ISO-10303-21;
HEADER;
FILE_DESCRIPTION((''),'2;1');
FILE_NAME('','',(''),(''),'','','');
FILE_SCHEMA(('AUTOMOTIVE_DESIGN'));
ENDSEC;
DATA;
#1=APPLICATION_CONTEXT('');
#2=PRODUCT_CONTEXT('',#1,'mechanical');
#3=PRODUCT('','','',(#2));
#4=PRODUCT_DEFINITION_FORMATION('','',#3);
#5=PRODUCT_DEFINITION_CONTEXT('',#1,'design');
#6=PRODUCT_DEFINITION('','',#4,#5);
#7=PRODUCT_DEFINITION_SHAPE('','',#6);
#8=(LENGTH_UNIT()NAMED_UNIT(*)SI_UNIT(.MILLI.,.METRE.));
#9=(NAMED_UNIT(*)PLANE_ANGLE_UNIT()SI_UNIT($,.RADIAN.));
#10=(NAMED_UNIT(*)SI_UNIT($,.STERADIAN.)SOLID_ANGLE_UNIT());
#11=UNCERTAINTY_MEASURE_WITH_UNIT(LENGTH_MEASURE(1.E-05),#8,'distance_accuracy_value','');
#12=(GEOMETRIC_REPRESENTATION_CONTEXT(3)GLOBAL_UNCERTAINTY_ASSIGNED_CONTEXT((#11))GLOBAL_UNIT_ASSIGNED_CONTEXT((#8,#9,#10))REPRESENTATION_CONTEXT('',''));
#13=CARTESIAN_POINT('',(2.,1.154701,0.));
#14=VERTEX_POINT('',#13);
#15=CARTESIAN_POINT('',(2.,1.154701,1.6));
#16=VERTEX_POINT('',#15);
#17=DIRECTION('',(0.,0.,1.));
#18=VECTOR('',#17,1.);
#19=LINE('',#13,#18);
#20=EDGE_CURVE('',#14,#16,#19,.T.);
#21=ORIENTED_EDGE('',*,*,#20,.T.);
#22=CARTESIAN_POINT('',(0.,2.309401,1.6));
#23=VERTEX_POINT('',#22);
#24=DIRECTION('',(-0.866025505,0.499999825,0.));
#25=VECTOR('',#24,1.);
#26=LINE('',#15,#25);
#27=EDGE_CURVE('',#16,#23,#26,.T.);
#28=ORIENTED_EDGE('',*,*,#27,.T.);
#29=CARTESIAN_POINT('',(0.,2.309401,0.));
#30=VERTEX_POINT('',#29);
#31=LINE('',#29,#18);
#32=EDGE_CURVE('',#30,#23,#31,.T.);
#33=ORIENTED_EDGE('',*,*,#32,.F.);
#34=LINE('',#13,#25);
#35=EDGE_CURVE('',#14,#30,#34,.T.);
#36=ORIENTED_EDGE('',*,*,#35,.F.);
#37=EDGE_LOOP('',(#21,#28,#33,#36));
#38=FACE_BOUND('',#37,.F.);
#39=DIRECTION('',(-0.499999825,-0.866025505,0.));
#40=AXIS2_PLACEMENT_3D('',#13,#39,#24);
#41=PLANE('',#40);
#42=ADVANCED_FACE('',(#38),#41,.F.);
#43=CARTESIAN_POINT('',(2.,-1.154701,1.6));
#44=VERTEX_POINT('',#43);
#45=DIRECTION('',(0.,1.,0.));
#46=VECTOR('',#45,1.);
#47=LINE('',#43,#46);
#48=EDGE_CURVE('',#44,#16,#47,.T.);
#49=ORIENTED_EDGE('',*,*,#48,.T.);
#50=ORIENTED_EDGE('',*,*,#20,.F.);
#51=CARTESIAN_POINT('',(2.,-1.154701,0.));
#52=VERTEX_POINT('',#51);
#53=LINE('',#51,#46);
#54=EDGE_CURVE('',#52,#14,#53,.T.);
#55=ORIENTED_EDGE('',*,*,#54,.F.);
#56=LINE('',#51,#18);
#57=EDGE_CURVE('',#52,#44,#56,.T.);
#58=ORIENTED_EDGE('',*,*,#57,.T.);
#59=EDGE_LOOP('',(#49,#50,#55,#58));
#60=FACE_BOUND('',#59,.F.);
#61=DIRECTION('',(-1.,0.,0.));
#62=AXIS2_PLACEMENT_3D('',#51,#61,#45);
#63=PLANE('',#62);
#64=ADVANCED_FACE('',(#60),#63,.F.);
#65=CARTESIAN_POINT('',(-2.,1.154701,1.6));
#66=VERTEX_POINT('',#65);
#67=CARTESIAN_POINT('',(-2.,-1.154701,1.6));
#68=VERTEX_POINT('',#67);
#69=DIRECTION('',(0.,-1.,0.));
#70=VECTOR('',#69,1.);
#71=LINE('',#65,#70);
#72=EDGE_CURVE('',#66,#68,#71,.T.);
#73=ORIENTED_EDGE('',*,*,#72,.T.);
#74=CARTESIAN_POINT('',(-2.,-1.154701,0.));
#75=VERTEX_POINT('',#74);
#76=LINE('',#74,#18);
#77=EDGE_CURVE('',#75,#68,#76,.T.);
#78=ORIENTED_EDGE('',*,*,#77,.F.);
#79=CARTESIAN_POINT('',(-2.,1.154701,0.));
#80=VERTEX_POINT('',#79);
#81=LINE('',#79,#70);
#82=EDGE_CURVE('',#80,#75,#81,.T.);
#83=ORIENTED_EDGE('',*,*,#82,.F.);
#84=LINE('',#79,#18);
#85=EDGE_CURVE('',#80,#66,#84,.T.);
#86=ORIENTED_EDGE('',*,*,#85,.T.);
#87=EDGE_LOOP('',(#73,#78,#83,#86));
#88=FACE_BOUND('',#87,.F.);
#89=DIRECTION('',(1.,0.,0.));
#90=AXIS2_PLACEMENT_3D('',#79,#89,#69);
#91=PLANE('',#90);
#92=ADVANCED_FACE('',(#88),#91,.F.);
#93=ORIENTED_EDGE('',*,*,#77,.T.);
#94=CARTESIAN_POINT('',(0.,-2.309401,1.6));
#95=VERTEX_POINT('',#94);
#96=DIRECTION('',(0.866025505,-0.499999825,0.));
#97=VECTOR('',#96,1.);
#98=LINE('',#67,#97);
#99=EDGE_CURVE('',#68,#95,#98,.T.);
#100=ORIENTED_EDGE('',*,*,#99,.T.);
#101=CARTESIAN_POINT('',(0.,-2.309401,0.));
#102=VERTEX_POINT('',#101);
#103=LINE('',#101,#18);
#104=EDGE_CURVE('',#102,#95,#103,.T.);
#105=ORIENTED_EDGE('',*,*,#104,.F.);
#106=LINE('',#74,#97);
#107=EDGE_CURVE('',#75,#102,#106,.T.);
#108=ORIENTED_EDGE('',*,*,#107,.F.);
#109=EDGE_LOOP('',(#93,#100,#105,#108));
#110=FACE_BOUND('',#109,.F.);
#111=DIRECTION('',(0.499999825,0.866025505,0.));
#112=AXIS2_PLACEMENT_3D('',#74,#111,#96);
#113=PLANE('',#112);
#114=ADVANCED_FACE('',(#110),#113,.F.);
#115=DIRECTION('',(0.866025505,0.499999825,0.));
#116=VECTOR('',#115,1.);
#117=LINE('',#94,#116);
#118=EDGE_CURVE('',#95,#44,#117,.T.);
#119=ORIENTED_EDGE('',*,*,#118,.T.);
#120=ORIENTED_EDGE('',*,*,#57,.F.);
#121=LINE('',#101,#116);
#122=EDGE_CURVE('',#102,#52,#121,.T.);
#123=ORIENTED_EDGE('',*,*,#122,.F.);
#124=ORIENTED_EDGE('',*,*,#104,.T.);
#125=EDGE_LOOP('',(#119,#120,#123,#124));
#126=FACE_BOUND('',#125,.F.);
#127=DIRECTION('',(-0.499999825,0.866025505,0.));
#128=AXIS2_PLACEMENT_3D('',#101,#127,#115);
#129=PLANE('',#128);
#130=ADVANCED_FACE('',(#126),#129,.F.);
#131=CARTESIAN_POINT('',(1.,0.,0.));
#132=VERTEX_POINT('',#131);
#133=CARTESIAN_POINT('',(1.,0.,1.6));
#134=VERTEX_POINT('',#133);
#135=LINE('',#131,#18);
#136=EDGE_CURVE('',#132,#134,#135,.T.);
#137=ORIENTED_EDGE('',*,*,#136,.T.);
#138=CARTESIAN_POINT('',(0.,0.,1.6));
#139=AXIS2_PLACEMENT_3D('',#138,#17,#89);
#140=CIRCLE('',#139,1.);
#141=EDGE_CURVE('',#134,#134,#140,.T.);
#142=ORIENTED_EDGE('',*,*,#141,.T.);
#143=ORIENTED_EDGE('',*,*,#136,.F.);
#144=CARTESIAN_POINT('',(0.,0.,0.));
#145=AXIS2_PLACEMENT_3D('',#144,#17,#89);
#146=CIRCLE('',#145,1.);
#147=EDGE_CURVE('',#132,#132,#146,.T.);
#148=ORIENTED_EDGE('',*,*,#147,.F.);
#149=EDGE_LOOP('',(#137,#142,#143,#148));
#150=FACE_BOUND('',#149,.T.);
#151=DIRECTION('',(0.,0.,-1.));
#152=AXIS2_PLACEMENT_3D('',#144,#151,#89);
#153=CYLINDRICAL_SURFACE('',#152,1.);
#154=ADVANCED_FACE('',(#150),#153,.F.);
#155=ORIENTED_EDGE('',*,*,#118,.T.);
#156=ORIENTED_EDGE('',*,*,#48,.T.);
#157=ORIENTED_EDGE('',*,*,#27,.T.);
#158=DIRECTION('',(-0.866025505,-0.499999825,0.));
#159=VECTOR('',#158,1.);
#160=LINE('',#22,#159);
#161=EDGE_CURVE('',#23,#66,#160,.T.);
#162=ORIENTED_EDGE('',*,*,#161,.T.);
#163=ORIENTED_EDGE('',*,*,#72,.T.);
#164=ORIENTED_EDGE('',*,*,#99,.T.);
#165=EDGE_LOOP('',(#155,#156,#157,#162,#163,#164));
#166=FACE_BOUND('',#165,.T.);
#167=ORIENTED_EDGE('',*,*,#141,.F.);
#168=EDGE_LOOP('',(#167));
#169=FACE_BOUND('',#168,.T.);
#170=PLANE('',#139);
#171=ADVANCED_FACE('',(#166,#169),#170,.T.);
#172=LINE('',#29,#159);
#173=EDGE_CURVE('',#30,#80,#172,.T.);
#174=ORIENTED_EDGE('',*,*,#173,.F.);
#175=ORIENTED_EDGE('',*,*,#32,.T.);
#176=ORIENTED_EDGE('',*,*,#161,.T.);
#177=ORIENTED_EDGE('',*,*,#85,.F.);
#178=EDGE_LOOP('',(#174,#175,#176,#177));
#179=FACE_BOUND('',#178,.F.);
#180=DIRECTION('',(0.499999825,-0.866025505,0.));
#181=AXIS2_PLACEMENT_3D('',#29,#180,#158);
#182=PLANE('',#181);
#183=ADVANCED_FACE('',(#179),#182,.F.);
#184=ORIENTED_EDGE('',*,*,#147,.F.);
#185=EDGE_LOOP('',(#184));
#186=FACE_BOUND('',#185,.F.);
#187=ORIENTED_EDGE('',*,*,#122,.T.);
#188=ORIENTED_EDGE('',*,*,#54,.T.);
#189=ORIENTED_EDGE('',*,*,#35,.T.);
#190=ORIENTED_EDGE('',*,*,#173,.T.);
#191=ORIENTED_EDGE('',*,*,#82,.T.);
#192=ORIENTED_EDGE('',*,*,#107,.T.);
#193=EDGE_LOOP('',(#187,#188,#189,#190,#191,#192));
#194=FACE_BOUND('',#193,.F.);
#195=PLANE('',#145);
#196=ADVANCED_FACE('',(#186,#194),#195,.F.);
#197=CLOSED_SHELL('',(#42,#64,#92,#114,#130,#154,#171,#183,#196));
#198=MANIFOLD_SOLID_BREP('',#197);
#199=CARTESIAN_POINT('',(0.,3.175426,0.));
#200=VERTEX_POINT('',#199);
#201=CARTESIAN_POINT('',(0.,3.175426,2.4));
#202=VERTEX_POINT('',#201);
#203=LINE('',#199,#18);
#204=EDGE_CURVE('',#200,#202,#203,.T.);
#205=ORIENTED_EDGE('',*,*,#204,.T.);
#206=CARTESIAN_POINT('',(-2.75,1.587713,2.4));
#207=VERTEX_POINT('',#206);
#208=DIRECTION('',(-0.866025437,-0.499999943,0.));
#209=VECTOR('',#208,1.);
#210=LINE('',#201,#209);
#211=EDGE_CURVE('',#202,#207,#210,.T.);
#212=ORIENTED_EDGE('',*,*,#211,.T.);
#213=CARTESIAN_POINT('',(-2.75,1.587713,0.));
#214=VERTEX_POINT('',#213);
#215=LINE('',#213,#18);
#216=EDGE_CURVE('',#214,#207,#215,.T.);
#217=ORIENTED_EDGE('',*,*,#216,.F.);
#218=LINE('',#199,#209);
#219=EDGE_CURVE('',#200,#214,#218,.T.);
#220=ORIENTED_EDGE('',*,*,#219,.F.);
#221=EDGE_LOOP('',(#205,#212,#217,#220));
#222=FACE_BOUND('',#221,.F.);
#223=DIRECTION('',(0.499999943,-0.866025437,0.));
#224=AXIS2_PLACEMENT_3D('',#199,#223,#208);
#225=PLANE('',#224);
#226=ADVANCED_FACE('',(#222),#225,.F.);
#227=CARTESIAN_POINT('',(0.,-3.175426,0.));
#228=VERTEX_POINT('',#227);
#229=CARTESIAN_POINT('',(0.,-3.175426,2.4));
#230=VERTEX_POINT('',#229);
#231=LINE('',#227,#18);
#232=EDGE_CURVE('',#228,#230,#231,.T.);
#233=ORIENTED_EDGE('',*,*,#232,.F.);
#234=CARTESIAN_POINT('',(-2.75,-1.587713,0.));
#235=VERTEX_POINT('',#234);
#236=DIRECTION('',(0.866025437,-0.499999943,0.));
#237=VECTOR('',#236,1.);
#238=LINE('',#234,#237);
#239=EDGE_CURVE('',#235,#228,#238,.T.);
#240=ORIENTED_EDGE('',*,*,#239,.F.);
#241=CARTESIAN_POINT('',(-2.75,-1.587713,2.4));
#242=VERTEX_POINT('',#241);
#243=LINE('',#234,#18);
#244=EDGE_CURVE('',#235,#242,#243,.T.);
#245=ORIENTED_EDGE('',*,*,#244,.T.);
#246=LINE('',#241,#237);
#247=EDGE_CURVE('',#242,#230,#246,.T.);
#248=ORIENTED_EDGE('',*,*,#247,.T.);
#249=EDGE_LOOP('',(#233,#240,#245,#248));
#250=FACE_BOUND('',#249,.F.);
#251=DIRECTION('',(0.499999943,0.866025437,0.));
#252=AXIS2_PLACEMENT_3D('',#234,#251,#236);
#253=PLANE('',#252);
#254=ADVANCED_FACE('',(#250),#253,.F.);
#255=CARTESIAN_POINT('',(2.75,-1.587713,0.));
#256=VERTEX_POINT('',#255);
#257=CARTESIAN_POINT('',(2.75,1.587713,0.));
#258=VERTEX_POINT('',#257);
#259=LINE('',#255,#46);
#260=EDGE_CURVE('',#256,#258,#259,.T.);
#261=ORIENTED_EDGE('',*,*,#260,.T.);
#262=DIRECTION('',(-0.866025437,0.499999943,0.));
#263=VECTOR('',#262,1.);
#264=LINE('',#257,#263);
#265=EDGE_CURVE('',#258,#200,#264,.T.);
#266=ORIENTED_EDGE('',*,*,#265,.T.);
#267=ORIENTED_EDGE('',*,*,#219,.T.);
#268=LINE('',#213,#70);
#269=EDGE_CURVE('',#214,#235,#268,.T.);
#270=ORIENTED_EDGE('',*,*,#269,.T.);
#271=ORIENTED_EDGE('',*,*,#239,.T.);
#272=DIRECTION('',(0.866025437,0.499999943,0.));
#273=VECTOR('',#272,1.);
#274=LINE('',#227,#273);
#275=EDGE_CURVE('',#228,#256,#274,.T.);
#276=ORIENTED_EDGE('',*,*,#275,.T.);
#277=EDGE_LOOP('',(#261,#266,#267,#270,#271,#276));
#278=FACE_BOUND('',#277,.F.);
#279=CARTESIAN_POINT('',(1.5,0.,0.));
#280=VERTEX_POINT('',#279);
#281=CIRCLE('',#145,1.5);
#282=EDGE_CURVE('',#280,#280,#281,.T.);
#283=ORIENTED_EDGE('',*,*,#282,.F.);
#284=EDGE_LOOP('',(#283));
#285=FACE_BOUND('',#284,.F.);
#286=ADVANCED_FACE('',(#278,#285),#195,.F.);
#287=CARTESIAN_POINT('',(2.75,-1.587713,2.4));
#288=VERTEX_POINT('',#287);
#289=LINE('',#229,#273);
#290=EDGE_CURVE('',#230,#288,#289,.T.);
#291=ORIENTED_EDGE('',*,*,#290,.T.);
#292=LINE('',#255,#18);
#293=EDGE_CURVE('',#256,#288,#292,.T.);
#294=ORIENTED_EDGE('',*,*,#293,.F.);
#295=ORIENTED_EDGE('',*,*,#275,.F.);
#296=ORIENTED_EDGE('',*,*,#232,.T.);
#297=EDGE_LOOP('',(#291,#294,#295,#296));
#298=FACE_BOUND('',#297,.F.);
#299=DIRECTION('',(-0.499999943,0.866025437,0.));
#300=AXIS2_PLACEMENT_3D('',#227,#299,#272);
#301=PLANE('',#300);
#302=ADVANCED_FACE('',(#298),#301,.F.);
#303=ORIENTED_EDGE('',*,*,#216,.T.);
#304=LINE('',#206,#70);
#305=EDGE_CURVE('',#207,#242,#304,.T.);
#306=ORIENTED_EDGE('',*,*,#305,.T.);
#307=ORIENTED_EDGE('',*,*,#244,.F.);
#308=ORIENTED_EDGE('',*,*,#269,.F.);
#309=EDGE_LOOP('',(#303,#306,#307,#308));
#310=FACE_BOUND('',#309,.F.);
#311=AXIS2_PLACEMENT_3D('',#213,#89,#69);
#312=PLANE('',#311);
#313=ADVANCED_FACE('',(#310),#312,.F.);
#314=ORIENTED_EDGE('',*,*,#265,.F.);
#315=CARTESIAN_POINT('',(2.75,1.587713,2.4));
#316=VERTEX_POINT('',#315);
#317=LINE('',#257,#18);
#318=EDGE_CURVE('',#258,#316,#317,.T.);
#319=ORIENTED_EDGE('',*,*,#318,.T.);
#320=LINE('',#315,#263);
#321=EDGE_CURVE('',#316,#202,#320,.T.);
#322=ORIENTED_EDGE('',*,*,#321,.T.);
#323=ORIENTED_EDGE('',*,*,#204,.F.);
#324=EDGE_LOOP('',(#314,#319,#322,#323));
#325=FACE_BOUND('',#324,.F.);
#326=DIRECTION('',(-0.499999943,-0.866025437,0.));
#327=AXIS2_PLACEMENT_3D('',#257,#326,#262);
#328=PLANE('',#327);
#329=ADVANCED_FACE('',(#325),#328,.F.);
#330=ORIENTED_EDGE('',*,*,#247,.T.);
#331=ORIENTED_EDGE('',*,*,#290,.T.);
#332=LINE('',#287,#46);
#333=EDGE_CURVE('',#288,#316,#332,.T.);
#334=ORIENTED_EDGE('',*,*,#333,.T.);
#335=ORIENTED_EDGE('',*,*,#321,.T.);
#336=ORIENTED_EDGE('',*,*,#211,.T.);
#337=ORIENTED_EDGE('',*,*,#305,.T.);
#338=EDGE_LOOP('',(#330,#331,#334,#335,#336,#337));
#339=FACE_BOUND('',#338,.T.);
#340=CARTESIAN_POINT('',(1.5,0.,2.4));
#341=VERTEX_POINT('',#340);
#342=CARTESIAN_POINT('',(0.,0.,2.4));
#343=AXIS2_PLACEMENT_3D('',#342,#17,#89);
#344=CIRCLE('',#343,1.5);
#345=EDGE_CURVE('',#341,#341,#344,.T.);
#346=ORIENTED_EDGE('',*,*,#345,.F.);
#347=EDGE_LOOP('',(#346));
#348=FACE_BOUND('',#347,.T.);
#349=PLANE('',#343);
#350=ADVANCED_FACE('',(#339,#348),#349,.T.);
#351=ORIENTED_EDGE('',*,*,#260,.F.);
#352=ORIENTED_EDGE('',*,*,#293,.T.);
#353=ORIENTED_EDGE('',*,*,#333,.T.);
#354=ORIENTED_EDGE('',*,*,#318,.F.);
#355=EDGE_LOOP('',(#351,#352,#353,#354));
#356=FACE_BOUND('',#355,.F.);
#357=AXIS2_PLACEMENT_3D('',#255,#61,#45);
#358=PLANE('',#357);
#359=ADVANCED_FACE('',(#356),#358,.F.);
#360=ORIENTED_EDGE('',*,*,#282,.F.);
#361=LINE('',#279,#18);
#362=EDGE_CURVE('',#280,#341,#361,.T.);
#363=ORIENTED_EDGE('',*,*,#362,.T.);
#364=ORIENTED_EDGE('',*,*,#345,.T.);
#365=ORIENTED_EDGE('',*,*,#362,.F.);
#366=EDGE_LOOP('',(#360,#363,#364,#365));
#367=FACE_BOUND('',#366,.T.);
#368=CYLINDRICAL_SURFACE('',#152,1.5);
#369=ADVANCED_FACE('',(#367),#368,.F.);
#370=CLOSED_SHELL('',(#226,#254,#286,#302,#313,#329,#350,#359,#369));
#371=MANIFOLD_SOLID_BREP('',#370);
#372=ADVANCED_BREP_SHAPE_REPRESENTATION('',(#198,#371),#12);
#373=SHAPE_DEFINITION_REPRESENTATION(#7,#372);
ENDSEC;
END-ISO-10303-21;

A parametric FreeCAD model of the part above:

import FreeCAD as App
import Part
import Sketcher

V = App.Vector
Q = App.Units.Quantity

doc = App.newDocument("Part")
body = doc.addObject("PartDesign::Body", "Body")

sketch1 = body.newObject("Sketcher::SketchObject", "Sketch")
sketch1.AttachmentSupport = (doc.getObject("XY_Plane"), [""])
sketch1.MapMode = "FlatFace"
sketch1.addGeometry([
    Part.LineSegment(V(2, -1.2, 0), V(2, 1.2, 0)),
    Part.LineSegment(V(2, 1.2, 0), V(0, 2.3, 0)),
    Part.LineSegment(V(0, 2.3, 0), V(-2, 1.2, 0)),
    Part.LineSegment(V(-2, 1.2, 0), V(-2, -1.2, 0)),
    Part.LineSegment(V(-2, -1.2, 0), V(0, -2.3, 0)),
    Part.LineSegment(V(0, -2.3, 0), V(2, -1.2, 0)),
    Part.Circle(V(0, 0, 0), V(0, 0, 1), 1),
], False)
sketch1.addConstraint([
    Sketcher.Constraint("Coincident", 0, 2, 1, 1),
    Sketcher.Constraint("Coincident", 1, 2, 2, 1),
    Sketcher.Constraint("Coincident", 2, 2, 3, 1),
    Sketcher.Constraint("Coincident", 3, 2, 4, 1),
    Sketcher.Constraint("Coincident", 4, 2, 5, 1),
    Sketcher.Constraint("Coincident", 5, 2, 0, 1),
    Sketcher.Constraint("Vertical", 0),
    Sketcher.Constraint("Vertical", 3),
    Sketcher.Constraint("Coincident", 6, 3, -1, 1),
    Sketcher.Constraint("Symmetric", 0, 2, 3, 2, -1, 1),
    Sketcher.Constraint("Symmetric", 1, 2, 4, 2, -1, 1),
    Sketcher.Constraint("PointOnObject", 1, 2, -2),
    Sketcher.Constraint("Parallel", 2, 5),
    Sketcher.Constraint("Horizontal", 0, 2, 2, 2),
    Sketcher.Constraint("Diameter", 6, Q("2 mm")),
    Sketcher.Constraint("Angle", 1, Q("150.000012 deg")),
    Sketcher.Constraint("DistanceX", -1, 1, 0, 2, Q("2 mm")),
    Sketcher.Constraint("DistanceY", 0, 1, 0, 2, Q("2.309402 mm")),
])
pad1 = body.newObject("PartDesign::Pad", "Pad")
pad1.Profile = sketch1
pad1.Length = 1.6
body2 = doc.addObject("PartDesign::Body", "Body001")

sketch2 = body2.newObject("Sketcher::SketchObject", "Sketch001")
sketch2.AttachmentSupport = (doc.getObject("XY_Plane001"), [""])
sketch2.MapMode = "FlatFace"
sketch2.addGeometry([
    Part.LineSegment(V(2.8, -1.6, 0), V(2.8, 1.6, 0)),
    Part.LineSegment(V(2.8, 1.6, 0), V(0, 3.2, 0)),
    Part.LineSegment(V(0, 3.2, 0), V(-2.8, 1.6, 0)),
    Part.LineSegment(V(-2.8, 1.6, 0), V(-2.8, -1.6, 0)),
    Part.LineSegment(V(-2.8, -1.6, 0), V(0, -3.2, 0)),
    Part.LineSegment(V(0, -3.2, 0), V(2.8, -1.6, 0)),
    Part.Circle(V(0, 0, 0), V(0, 0, 1), 1.5),
], False)
sketch2.addConstraint([
    Sketcher.Constraint("Coincident", 0, 2, 1, 1),
    Sketcher.Constraint("Coincident", 1, 2, 2, 1),
    Sketcher.Constraint("Coincident", 2, 2, 3, 1),
    Sketcher.Constraint("Coincident", 3, 2, 4, 1),
    Sketcher.Constraint("Coincident", 4, 2, 5, 1),
    Sketcher.Constraint("Coincident", 5, 2, 0, 1),
    Sketcher.Constraint("Vertical", 0),
    Sketcher.Constraint("Vertical", 3),
    Sketcher.Constraint("Coincident", 6, 3, -1, 1),
    Sketcher.Constraint("Symmetric", 0, 2, 3, 2, -1, 1),
    Sketcher.Constraint("Symmetric", 1, 2, 4, 2, -1, 1),
    Sketcher.Constraint("PointOnObject", 1, 2, -2),
    Sketcher.Constraint("Parallel", 2, 5),
    Sketcher.Constraint("Horizontal", 0, 2, 2, 2),
    Sketcher.Constraint("Diameter", 6, Q("3 mm")),
    Sketcher.Constraint("Angle", 1, Q("150.000004 deg")),
    Sketcher.Constraint("DistanceX", 2, 2, 0, 2, Q("5.5 mm")),
    Sketcher.Constraint("DistanceY", 0, 1, 0, 2, Q("3.175426 mm")),
])
pad2 = body2.newObject("PartDesign::Pad", "Pad001")
pad2.Profile = sketch2
pad2.Length = 2.4

doc.recompute()
